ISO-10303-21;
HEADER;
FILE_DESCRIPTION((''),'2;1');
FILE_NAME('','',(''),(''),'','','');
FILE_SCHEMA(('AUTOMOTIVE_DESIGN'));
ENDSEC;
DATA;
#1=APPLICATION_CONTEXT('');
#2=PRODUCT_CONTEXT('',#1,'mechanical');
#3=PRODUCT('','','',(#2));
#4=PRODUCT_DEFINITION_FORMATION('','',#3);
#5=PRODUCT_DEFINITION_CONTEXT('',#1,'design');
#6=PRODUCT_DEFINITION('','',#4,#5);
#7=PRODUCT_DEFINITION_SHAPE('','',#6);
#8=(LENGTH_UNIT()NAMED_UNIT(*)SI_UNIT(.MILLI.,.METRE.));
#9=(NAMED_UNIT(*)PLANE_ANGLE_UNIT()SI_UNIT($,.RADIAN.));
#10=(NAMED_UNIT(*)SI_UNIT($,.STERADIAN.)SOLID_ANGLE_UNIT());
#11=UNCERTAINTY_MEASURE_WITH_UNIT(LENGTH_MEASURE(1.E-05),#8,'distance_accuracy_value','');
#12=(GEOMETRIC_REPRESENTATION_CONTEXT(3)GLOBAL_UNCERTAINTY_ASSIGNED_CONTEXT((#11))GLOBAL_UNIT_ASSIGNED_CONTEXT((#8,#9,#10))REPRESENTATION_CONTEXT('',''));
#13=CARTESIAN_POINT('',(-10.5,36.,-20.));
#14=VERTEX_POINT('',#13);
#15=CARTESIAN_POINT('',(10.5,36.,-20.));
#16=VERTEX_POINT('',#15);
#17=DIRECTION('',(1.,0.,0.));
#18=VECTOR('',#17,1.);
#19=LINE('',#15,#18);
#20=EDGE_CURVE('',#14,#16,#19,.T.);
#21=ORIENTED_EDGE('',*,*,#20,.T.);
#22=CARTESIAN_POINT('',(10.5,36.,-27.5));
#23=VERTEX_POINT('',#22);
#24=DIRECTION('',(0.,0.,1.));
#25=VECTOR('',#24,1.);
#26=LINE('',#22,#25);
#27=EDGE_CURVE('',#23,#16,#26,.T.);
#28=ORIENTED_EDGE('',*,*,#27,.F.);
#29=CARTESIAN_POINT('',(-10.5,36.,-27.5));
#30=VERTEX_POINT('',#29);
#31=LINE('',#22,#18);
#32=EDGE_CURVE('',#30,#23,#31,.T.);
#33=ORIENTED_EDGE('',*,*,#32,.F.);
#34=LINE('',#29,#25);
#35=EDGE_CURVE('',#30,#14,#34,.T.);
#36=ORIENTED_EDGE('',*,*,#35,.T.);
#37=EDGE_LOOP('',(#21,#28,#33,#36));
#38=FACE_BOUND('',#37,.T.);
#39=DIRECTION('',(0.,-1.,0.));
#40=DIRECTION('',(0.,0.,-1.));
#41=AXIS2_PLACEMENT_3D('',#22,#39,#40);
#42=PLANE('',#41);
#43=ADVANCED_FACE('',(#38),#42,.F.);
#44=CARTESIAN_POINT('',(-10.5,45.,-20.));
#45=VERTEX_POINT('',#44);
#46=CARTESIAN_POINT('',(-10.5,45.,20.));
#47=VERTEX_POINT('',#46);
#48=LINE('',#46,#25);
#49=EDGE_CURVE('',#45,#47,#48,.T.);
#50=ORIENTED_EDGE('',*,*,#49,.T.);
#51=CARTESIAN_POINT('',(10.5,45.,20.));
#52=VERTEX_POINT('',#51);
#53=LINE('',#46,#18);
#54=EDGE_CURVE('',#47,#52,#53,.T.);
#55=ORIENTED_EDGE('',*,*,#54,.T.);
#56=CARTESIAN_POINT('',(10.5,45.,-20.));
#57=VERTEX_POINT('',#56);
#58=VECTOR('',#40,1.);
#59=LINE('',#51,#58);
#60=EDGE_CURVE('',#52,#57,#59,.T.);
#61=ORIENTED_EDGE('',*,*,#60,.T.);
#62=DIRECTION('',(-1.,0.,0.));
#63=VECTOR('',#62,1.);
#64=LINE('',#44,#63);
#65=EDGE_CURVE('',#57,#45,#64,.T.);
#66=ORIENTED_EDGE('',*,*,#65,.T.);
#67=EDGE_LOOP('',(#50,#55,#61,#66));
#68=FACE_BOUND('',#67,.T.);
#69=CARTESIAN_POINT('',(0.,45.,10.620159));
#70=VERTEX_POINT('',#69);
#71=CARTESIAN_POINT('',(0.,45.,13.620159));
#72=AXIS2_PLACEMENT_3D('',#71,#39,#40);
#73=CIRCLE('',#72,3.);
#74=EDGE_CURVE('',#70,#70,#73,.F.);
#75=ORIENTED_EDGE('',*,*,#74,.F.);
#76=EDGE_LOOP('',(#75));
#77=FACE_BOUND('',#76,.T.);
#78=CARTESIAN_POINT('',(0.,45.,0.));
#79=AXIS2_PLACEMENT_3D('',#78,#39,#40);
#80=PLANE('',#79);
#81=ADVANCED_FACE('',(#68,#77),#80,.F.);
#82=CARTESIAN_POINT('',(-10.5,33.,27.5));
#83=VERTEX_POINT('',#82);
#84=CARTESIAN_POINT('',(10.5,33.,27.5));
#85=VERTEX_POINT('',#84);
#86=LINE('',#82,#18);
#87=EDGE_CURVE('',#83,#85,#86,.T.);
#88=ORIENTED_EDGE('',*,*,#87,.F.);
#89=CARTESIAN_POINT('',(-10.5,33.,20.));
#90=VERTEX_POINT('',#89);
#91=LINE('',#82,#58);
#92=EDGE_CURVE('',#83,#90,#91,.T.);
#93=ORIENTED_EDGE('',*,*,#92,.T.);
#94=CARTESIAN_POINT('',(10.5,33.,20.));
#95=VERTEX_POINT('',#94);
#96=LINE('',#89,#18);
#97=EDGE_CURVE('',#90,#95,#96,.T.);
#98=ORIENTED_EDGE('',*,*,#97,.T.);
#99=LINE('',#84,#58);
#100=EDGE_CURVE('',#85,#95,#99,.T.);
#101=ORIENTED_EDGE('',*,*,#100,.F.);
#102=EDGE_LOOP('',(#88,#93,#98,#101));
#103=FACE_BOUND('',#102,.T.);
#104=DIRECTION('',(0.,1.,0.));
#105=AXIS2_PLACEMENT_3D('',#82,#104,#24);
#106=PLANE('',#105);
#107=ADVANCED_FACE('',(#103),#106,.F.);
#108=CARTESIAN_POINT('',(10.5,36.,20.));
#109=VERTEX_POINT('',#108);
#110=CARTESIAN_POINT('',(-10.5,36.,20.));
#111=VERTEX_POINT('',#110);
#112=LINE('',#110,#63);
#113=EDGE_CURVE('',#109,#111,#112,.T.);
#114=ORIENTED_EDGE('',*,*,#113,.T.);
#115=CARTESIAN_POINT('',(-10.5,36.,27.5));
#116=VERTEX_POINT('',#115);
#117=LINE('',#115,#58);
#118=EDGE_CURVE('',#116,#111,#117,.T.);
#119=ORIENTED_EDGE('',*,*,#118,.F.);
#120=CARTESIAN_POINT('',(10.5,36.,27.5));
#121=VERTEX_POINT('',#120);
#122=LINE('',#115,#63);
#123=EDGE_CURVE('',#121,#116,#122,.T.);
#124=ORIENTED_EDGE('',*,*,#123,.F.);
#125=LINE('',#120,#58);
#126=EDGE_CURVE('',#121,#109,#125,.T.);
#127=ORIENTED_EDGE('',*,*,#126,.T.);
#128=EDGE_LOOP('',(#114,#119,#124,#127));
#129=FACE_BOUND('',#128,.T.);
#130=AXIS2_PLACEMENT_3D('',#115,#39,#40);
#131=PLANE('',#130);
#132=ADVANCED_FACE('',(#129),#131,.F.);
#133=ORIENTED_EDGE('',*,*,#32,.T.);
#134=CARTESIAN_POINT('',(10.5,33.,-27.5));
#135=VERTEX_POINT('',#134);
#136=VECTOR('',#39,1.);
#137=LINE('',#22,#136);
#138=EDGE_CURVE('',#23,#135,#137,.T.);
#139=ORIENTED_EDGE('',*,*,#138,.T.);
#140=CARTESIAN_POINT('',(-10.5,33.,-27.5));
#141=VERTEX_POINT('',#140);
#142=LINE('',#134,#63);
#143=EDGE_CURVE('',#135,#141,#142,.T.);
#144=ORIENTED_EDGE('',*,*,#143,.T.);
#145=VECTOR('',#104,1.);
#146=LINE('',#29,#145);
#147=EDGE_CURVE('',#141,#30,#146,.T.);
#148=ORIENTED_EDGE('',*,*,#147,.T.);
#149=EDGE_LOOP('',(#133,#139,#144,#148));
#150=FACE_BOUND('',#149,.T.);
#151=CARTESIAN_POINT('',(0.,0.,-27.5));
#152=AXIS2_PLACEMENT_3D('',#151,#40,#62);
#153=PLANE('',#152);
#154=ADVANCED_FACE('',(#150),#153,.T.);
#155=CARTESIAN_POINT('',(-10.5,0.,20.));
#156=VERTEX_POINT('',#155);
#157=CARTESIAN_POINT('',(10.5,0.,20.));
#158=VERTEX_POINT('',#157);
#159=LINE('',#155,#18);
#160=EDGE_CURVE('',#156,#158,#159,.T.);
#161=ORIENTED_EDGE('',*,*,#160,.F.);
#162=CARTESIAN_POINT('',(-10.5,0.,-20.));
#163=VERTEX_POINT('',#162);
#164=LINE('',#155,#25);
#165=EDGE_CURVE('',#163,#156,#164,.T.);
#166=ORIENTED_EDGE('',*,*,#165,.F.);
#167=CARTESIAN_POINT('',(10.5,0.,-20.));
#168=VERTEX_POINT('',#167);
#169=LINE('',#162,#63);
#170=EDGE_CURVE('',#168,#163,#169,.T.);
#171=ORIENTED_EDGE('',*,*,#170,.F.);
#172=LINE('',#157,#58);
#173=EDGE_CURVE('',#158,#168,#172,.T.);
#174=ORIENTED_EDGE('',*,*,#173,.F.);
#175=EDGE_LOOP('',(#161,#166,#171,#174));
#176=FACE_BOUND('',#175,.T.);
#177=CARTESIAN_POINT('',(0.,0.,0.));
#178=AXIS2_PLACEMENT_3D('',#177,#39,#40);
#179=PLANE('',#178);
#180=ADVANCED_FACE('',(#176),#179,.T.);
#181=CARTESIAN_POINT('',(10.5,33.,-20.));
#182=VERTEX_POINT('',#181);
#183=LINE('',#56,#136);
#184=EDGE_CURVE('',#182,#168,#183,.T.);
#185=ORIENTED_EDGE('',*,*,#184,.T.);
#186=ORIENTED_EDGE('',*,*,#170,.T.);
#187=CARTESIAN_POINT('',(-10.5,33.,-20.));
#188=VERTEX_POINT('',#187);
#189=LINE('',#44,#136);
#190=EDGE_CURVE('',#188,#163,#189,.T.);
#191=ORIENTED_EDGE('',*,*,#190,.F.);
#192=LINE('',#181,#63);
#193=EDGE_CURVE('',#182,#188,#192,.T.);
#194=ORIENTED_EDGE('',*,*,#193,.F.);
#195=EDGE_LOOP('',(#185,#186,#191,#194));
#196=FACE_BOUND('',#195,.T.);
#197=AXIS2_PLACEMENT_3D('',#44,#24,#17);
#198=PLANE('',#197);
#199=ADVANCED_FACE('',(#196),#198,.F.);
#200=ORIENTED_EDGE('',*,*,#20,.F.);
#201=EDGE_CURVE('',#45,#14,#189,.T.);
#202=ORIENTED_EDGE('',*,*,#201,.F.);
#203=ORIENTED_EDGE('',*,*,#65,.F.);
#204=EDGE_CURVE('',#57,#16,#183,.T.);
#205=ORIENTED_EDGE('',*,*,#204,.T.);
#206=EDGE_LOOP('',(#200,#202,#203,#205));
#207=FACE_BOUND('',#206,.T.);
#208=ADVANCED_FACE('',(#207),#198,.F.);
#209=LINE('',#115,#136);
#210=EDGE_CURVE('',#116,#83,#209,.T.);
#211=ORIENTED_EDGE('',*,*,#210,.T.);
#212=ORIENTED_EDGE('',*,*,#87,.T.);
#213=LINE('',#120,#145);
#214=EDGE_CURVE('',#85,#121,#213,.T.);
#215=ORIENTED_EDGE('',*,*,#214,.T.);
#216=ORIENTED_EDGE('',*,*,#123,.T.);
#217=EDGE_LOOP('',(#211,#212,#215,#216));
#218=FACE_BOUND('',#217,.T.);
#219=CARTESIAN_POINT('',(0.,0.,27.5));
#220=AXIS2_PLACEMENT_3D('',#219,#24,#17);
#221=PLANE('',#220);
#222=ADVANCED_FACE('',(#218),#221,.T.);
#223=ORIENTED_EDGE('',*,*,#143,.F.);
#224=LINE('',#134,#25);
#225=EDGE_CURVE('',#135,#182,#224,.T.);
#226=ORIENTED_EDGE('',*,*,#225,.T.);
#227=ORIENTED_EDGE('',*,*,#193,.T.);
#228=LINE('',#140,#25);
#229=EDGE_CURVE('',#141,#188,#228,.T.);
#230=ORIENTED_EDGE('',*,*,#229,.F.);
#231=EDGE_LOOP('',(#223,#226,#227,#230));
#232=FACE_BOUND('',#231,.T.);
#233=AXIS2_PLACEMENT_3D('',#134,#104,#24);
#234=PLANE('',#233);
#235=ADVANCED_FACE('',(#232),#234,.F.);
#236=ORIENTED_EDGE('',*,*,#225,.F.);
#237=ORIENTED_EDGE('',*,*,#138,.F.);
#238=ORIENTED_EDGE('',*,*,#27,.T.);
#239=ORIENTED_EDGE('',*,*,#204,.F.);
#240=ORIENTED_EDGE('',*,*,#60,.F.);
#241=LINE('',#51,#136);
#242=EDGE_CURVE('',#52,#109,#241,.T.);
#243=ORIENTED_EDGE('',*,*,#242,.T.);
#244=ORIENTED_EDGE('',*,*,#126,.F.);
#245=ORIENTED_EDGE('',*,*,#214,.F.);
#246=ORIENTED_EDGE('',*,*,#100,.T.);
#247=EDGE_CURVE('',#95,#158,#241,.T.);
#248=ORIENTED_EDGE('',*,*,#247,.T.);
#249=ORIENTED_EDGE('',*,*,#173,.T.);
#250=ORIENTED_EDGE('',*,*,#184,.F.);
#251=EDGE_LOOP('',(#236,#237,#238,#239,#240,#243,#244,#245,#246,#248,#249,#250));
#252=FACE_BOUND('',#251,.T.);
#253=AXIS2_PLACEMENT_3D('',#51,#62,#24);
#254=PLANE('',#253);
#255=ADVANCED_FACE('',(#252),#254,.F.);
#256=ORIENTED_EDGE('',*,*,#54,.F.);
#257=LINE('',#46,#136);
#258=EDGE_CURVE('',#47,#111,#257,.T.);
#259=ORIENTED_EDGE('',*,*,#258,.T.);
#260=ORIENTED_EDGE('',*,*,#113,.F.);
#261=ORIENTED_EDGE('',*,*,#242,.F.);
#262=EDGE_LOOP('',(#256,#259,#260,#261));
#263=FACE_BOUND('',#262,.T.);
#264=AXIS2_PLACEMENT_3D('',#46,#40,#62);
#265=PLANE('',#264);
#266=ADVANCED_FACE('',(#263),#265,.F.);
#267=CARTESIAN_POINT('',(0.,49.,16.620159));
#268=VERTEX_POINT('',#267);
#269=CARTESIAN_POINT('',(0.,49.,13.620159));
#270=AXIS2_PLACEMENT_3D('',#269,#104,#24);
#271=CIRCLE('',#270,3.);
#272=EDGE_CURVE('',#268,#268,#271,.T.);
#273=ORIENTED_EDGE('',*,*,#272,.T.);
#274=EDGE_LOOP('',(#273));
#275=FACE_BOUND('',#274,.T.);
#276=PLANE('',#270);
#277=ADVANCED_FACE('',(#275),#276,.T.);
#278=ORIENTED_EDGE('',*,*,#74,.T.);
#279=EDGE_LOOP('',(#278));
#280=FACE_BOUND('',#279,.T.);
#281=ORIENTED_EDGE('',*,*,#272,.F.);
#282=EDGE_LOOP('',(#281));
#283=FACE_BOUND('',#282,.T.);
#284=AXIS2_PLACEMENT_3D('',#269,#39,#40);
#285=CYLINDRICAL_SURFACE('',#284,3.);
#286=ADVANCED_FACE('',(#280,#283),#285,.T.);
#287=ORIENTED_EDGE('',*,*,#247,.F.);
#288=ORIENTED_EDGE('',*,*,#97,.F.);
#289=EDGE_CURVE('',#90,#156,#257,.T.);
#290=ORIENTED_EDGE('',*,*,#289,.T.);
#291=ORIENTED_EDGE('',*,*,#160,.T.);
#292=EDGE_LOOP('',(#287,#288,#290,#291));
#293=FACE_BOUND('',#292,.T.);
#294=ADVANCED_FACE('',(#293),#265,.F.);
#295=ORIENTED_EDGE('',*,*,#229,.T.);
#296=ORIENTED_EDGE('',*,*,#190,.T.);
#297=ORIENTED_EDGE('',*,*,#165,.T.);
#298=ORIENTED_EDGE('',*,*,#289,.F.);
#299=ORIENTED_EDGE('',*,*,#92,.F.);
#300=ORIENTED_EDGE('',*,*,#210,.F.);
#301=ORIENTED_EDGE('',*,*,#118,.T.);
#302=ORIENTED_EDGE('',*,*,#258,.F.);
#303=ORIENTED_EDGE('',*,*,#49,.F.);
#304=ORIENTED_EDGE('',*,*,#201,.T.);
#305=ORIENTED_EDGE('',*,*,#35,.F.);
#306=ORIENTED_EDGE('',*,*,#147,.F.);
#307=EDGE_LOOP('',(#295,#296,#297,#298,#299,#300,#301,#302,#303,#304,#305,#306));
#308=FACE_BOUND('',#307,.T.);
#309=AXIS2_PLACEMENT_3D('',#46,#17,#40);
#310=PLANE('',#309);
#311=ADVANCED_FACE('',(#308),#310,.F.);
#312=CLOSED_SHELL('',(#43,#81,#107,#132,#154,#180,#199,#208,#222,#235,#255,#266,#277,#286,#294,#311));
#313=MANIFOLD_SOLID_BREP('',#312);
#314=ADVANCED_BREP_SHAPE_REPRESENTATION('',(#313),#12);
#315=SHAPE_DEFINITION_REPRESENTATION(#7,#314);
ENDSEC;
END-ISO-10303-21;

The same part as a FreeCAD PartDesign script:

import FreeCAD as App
import Part
import Sketcher
from FreeCAD import Vector
Q = App.Units.Quantity


def add_polygon(sketch, points):
    """Adds a closed chain of lines whose ends are joined by coincident constraints."""
    first, n = sketch.GeometryCount, len(points)
    for a, b in zip(points, points[1:] + points[:1]):
        sketch.addGeometry(Part.LineSegment(App.Vector(*a, 0), App.Vector(*b, 0)), False)
    for i in range(n):
        sketch.addConstraint(Sketcher.Constraint("Coincident", first + i, 2, first + (i + 1) % n, 1))

doc = App.newDocument("Part")
params = doc.addObject("Spreadsheet::Sheet", "Params")
for row, (alias, value) in enumerate([
    ("sketch1_width", "21 mm"),
    ("sketch1_height", "40 mm"),
    ("pad1_length", "45 mm"),
    ("sketch2_width", "21 mm"),
    ("sketch2_height", "3 mm"),
    ("pad2_length", "7.5 mm"),
    ("sketch3_width", "21 mm"),
    ("sketch3_height", "3 mm"),
    ("pad3_length", "7.5 mm"),
    ("sketch4_diameter", "6 mm"),
    ("pad4_length", "4 mm"),
], start=1):
    params.set(f"A{row}", alias)
    params.set(f"B{row}", "=" + value)
    params.setAlias(f"B{row}", alias)

body = doc.addObject("PartDesign::Body", "Body")

sketch1 = body.newObject("Sketcher::SketchObject", "Sketch")
sketch1.AttachmentSupport = (doc.getObject("XZ_Plane"), [""])
sketch1.MapMode = "FlatFace"
add_polygon(sketch1, [(-10.5, -20), (-10.5, 20), (10.5, 20), (10.5, -20)])
sketch1.addConstraint(Sketcher.Constraint("Vertical", 0))
sketch1.addConstraint(Sketcher.Constraint("Horizontal", 1))
sketch1.addConstraint(Sketcher.Constraint("Vertical", 2))
sketch1.addConstraint(Sketcher.Constraint("Horizontal", 3))
sketch1.addConstraint(Sketcher.Constraint("Symmetric", 0, 2, 2, 2, -1, 1))
sketch1.addConstraint(Sketcher.Constraint("DistanceX", 1, 1, 1, 2, Q("21 mm")))
sketch1.addConstraint(Sketcher.Constraint("DistanceY", 0, 1, 0, 2, Q("40 mm")))
sketch1.setExpression("Constraints[9]", "Params.sketch1_width")
sketch1.setExpression("Constraints[10]", "Params.sketch1_height")
pad1 = body.newObject("PartDesign::Pad", "Pad")
pad1.Profile = sketch1
pad1.setExpression("Length", "Params.pad1_length")
pad1.Reversed = True

sketch2 = body.newObject("Sketcher::SketchObject", "Sketch001")
sketch2.AttachmentSupport = (doc.getObject("XY_Plane"), [""])
sketch2.MapMode = "FlatFace"
sketch2.AttachmentOffset = App.Placement(Vector(0, 0, 20), App.Rotation())
add_polygon(sketch2, [(-10.5, 36), (-10.5, 33), (10.5, 33), (10.5, 36)])
sketch2.addConstraint(Sketcher.Constraint("Vertical", 0))
sketch2.addConstraint(Sketcher.Constraint("Horizontal", 1))
sketch2.addConstraint(Sketcher.Constraint("Vertical", 2))
sketch2.addConstraint(Sketcher.Constraint("Horizontal", 3))
sketch2.addConstraint(Sketcher.Constraint("DistanceX", 1, 1, 1, 2, Q("21 mm")))
sketch2.addConstraint(Sketcher.Constraint("DistanceY", 0, 2, 0, 1, Q("3 mm")))
sketch2.addConstraint(Sketcher.Constraint("DistanceY", -1, 1, 0, 2, Q("33 mm")))
sketch2.addConstraint(Sketcher.Constraint("DistanceX", 0, 2, -1, 1, Q("10.5 mm")))
sketch2.setExpression("Constraints[8]", "Params.sketch2_width")
sketch2.setExpression("Constraints[9]", "Params.sketch2_height")
pad2 = body.newObject("PartDesign::Pad", "Pad001")
pad2.Profile = sketch2
pad2.setExpression("Length", "Params.pad2_length")

sketch3 = body.newObject("Sketcher::SketchObject", "Sketch002")
sketch3.AttachmentSupport = (doc.getObject("XY_Plane"), [""])
sketch3.MapMode = "FlatFace"
sketch3.AttachmentOffset = App.Placement(Vector(0, 0, -20), App.Rotation())
add_polygon(sketch3, [(10.5, 36), (10.5, 33), (-10.5, 33), (-10.5, 36)])
sketch3.addConstraint(Sketcher.Constraint("Vertical", 0))
sketch3.addConstraint(Sketcher.Constraint("Horizontal", 1))
sketch3.addConstraint(Sketcher.Constraint("Vertical", 2))
sketch3.addConstraint(Sketcher.Constraint("Horizontal", 3))
sketch3.addConstraint(Sketcher.Constraint("DistanceX", 1, 2, 1, 1, Q("21 mm")))
sketch3.addConstraint(Sketcher.Constraint("DistanceY", 0, 2, 0, 1, Q("3 mm")))
sketch3.addConstraint(Sketcher.Constraint("DistanceY", -1, 1, 0, 2, Q("33 mm")))
sketch3.addConstraint(Sketcher.Constraint("DistanceX", -1, 1, 0, 2, Q("10.5 mm")))
sketch3.setExpression("Constraints[8]", "Params.sketch3_width")
sketch3.setExpression("Constraints[9]", "Params.sketch3_height")
pad3 = body.newObject("PartDesign::Pad", "Pad002")
pad3.Profile = sketch3
pad3.setExpression("Length", "Params.pad3_length")
pad3.Reversed = True

sketch4 = body.newObject("Sketcher::SketchObject", "Sketch003")
sketch4.AttachmentSupport = (doc.getObject("XZ_Plane"), [""])
sketch4.MapMode = "FlatFace"
sketch4.AttachmentOffset = App.Placement(Vector(0, 0, -45), App.Rotation())
sketch4.addGeometry(Part.Circle(Vector(0, 13.620159, 0), Vector(0, 0, 1), 3), False)
sketch4.addConstraint(Sketcher.Constraint("PointOnObject", 0, 3, -2))
sketch4.addConstraint(Sketcher.Constraint("Diameter", 0, Q("6 mm")))
sketch4.addConstraint(Sketcher.Constraint("DistanceY", -1, 1, 0, 3, Q("13.620159 mm")))
sketch4.setExpression("Constraints[1]", "Params.sketch4_diameter")
pad4 = body.newObject("PartDesign::Pad", "Pad003")
pad4.Profile = sketch4
pad4.setExpression("Length", "Params.pad4_length")
pad4.Reversed = True

doc.recompute()
